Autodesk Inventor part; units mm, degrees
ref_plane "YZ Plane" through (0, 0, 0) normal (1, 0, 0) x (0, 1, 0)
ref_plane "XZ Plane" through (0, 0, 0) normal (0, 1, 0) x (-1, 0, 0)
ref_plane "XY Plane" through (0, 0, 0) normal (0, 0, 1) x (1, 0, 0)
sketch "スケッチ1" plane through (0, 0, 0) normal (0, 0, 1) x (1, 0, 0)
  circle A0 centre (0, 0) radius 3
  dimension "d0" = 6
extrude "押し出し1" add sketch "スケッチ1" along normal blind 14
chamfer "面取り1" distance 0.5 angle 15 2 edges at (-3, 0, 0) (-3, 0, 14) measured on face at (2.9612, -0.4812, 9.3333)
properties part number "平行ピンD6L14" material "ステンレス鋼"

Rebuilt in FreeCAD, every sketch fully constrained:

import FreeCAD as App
import Part
import Sketcher

V = App.Vector
Q = App.Units.Quantity


def edges_at(feature, points):
    """Names of the edges that pass closest to the given points."""
    edges = feature.Shape.Edges
    near = lambda p: min(range(len(edges)), key=lambda i: edges[i].distToShape(Part.Vertex(*p))[0])
    return sorted({f"Edge{near(p) + 1}" for p in points})

doc = App.newDocument("Part")
body = doc.addObject("PartDesign::Body", "Body")

sketch1 = body.newObject("Sketcher::SketchObject", "Sketch")
sketch1.AttachmentSupport = (doc.getObject("XY_Plane"), [""])
sketch1.MapMode = "FlatFace"
sketch1.addGeometry(Part.Circle(V(0, 0, 0), V(0, 0, 1), 3), False)
sketch1.addConstraint([
    Sketcher.Constraint("Coincident", 0, 3, -1, 1),
    Sketcher.Constraint("Diameter", 0, Q("6 mm")),
])
pad1 = body.newObject("PartDesign::Pad", "Pad")
pad1.Profile = sketch1
pad1.Length = 14
doc.recompute()

chamfer = body.newObject("PartDesign::Chamfer", "Chamfer")
chamfer.Base = (pad1, edges_at(pad1, [(-3, 0, 0), (-3, 0, 14)]))
chamfer.ChamferType = "Distance and Angle"
chamfer.Size = 0.5
chamfer.Angle = 15

doc.recompute()
